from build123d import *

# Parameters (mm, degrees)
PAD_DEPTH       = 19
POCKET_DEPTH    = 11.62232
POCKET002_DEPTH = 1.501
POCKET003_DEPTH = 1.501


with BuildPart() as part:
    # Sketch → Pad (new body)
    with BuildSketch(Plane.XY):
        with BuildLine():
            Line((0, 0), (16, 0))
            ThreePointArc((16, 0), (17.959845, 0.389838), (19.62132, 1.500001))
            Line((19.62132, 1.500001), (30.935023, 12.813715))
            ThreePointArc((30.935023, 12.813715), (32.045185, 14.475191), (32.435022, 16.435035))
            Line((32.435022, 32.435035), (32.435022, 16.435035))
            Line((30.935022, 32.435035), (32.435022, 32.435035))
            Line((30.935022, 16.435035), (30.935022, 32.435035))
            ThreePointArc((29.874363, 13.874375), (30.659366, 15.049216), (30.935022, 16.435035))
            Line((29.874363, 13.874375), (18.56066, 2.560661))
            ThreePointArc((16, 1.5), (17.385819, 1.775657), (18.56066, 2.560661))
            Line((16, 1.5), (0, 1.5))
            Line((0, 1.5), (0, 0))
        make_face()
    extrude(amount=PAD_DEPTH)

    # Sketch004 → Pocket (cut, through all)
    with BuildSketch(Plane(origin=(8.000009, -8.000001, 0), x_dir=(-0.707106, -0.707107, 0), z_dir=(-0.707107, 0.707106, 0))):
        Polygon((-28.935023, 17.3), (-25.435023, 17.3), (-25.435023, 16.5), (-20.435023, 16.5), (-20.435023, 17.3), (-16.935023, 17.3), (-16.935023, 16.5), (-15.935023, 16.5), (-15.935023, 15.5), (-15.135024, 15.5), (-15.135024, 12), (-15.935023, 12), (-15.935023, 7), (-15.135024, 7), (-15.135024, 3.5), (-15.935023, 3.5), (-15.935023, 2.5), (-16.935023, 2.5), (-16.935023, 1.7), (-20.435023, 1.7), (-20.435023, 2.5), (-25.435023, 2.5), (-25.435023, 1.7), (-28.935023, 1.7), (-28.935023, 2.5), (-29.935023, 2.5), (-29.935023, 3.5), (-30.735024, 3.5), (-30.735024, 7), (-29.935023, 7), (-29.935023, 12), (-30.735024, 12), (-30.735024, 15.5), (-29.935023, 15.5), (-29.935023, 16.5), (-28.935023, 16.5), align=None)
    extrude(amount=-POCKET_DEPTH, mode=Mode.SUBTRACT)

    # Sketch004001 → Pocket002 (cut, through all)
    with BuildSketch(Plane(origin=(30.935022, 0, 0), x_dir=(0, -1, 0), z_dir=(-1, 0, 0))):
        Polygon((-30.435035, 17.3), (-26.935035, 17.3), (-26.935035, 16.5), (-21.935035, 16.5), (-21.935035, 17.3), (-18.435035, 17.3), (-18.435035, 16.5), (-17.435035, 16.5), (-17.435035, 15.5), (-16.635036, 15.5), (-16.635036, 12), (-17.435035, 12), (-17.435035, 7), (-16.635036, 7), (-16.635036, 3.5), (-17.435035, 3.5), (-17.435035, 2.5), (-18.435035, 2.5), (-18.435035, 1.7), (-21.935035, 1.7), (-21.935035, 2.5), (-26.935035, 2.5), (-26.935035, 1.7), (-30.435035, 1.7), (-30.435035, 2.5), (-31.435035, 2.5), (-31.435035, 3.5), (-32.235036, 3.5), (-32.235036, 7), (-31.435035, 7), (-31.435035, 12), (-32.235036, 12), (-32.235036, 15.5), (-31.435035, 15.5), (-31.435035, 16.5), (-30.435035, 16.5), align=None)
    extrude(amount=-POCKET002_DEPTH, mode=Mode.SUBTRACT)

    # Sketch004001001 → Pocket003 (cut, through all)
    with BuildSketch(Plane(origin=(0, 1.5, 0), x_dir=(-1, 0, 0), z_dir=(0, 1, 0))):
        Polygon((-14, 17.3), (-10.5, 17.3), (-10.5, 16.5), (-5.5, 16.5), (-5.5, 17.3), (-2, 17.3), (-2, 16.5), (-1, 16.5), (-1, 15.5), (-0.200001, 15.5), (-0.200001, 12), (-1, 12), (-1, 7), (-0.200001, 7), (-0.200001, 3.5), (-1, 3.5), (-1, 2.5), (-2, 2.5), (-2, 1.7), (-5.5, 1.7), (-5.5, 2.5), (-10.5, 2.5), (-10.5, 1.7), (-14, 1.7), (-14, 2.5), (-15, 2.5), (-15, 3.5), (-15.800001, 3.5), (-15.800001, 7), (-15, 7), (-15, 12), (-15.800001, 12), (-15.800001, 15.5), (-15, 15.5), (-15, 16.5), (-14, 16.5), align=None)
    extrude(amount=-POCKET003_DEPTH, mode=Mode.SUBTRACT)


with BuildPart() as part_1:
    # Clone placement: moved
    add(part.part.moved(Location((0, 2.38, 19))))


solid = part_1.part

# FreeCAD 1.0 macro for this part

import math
import FreeCAD as App
import Part
import Sketcher
from FreeCAD import Vector
Q = App.Units.Quantity

doc = App.newDocument("Part")
body = doc.addObject("PartDesign::Body", "Body")

sketch1 = doc.addObject("Sketcher::SketchObject", "Sketch")
body.addObject(sketch1)
sketch1.AttachmentSupport = (doc.XY_Plane, [""])
sketch1.MapMode = "FlatFace"
sketch1.addGeometry([
    Part.LineSegment(Vector(0, 0, 0), Vector(16, 0, 0)),
    Part.ArcOfCircle(Part.Circle(Vector(16, 5.1, 0), Vector(0, 0, 1), 5.1), math.radians(-90), math.radians(-45)),
    Part.LineSegment(Vector(19.6, 1.5, 0), Vector(30.9, 12.8, 0)),
    Part.ArcOfCircle(Part.Circle(Vector(27.3, 16.4, 0), Vector(0, 0, 1), 5.1), math.radians(-45), math.radians(0)),
    Part.LineSegment(Vector(32.4, 16.4, 0), Vector(32.4, 32.4, 0)),
    Part.LineSegment(Vector(32.4, 32.4, 0), Vector(30.9, 32.4, 0)),
    Part.LineSegment(Vector(30.9, 32.4, 0), Vector(30.9, 16.4, 0)),
    Part.ArcOfCircle(Part.Circle(Vector(27.3, 16.4, 0), Vector(0, 0, 1), 3.6), math.radians(-45), math.radians(0)),
    Part.LineSegment(Vector(29.9, 13.9, 0), Vector(18.6, 2.6, 0)),
    Part.ArcOfCircle(Part.Circle(Vector(16, 5.1, 0), Vector(0, 0, 1), 3.6), math.radians(-90), math.radians(-45)),
    Part.LineSegment(Vector(16, 1.5, 0), Vector(0, 1.5, 0)),
    Part.LineSegment(Vector(0, 1.5, 0), Vector(0, 0, 0)),
], False)
sketch1.addConstraint([
    Sketcher.Constraint("Tangent", 0, 2, 1, 1),
    Sketcher.Constraint("Tangent", 1, 2, 2, 1),
    Sketcher.Constraint("Tangent", 2, 2, 3, 1),
    Sketcher.Constraint("Tangent", 3, 2, 4, 1),
    Sketcher.Constraint("Coincident", 4, 2, 5, 1),
    Sketcher.Constraint("Coincident", 5, 2, 6, 1),
    Sketcher.Constraint("Tangent", 6, 2, 7, 2),
    Sketcher.Constraint("Tangent", 7, 1, 8, 1),
    Sketcher.Constraint("Tangent", 8, 2, 9, 2),
    Sketcher.Constraint("Tangent", 9, 1, 10, 1),
    Sketcher.Constraint("Coincident", 10, 2, 11, 1),
    Sketcher.Constraint("Coincident", 11, 2, 0, 1),
    Sketcher.Constraint("Horizontal", 0),
    Sketcher.Constraint("Vertical", 4),
    Sketcher.Constraint("Horizontal", 5),
    Sketcher.Constraint("Vertical", 6),
    Sketcher.Constraint("Horizontal", 10),
    Sketcher.Constraint("Vertical", 11),
    Sketcher.Constraint("Coincident", 11, 2, -1, 1),
    Sketcher.Constraint("Coincident", 7, 3, 3, 3),
    Sketcher.Constraint("Coincident", 9, 3, 1, 3),
    Sketcher.Constraint("Equal", 7, 9),
    Sketcher.Constraint("Parallel", 2, 8),
    Sketcher.Constraint("Horizontal", 1, 2, 9, 1),
    Sketcher.Constraint("Vertical", 2, 2, 5, 2),
    Sketcher.Constraint("Equal", 10, 4),
    Sketcher.Constraint("DistanceX", 0, 1, 0, 2, Q("16 mm")),
    Sketcher.Constraint("Distance", 2, Q("16 mm")),
    Sketcher.Constraint("DistanceX", 5, 2, 5, 1, Q("1.5 mm")),
])
pad1 = doc.addObject("PartDesign::Pad", "Pad")
body.addObject(pad1)
pad1.Profile = sketch1
pad1.Length = 19

sketch2 = doc.addObject("Sketcher::SketchObject", "Sketch001")
body.addObject(sketch2)
sketch2.Placement = App.Placement(Vector(8.000009, -8.000001, 0), App.Rotation(Vector(-0.707106281, -0.707107281, 0), Vector(0, 0, 0.999999999), Vector(-0.707107281, 0.707106281, 0), "ZXY"))
sketch2.addGeometry([
    Part.LineSegment(Vector(-25.4, 17.3, 0), Vector(-28.9, 17.3, 0)),
    Part.LineSegment(Vector(-28.9, 17.3, 0), Vector(-28.9, 16.5, 0)),
    Part.LineSegment(Vector(-28.9, 16.5, 0), Vector(-29.9, 16.5, 0)),
    Part.LineSegment(Vector(-29.9, 16.5, 0), Vector(-29.9, 15.5, 0)),
    Part.LineSegment(Vector(-29.9, 15.5, 0), Vector(-30.7, 15.5, 0)),
    Part.LineSegment(Vector(-30.7, 15.5, 0), Vector(-30.7, 12, 0)),
    Part.LineSegment(Vector(-30.7, 12, 0), Vector(-29.9, 12, 0)),
    Part.LineSegment(Vector(-29.9, 12, 0), Vector(-29.9, 7, 0)),
    Part.LineSegment(Vector(-29.9, 7, 0), Vector(-30.7, 7, 0)),
    Part.LineSegment(Vector(-30.7, 7, 0), Vector(-30.7, 3.5, 0)),
    Part.LineSegment(Vector(-30.7, 3.5, 0), Vector(-29.9, 3.5, 0)),
    Part.LineSegment(Vector(-29.9, 3.5, 0), Vector(-29.9, 2.5, 0)),
    Part.LineSegment(Vector(-29.9, 2.5, 0), Vector(-28.9, 2.5, 0)),
    Part.LineSegment(Vector(-28.9, 2.5, 0), Vector(-28.9, 1.7, 0)),
    Part.LineSegment(Vector(-28.9, 1.7, 0), Vector(-25.4, 1.7, 0)),
    Part.LineSegment(Vector(-25.4, 1.7, 0), Vector(-25.4, 2.5, 0)),
    Part.LineSegment(Vector(-25.4, 2.5, 0), Vector(-20.4, 2.5, 0)),
    Part.LineSegment(Vector(-20.4, 2.5, 0), Vector(-20.4, 1.7, 0)),
    Part.LineSegment(Vector(-20.4, 1.7, 0), Vector(-16.9, 1.7, 0)),
    Part.LineSegment(Vector(-16.9, 1.7, 0), Vector(-16.9, 2.5, 0)),
    Part.LineSegment(Vector(-16.9, 2.5, 0), Vector(-15.9, 2.5, 0)),
    Part.LineSegment(Vector(-15.9, 2.5, 0), Vector(-15.9, 3.5, 0)),
    Part.LineSegment(Vector(-15.9, 3.5, 0), Vector(-15.1, 3.5, 0)),
    Part.LineSegment(Vector(-15.1, 3.5, 0), Vector(-15.1, 7, 0)),
    Part.LineSegment(Vector(-15.1, 7, 0), Vector(-15.9, 7, 0)),
    Part.LineSegment(Vector(-15.9, 7, 0), Vector(-15.9, 12, 0)),
    Part.LineSegment(Vector(-15.9, 12, 0), Vector(-15.1, 12, 0)),
    Part.LineSegment(Vector(-15.1, 12, 0), Vector(-15.1, 15.5, 0)),
    Part.LineSegment(Vector(-15.1, 15.5, 0), Vector(-15.9, 15.5, 0)),
    Part.LineSegment(Vector(-15.9, 15.5, 0), Vector(-15.9, 16.5, 0)),
    Part.LineSegment(Vector(-15.9, 16.5, 0), Vector(-16.9, 16.5, 0)),
    Part.LineSegment(Vector(-16.9, 16.5, 0), Vector(-16.9, 17.3, 0)),
    Part.LineSegment(Vector(-16.9, 17.3, 0), Vector(-20.4, 17.3, 0)),
    Part.LineSegment(Vector(-20.4, 17.3, 0), Vector(-20.4, 16.5, 0)),
    Part.LineSegment(Vector(-20.4, 16.5, 0), Vector(-25.4, 16.5, 0)),
    Part.LineSegment(Vector(-25.4, 16.5, 0), Vector(-25.4, 17.3, 0)),
], False)
sketch2.addConstraint([
    Sketcher.Constraint("Coincident", 0, 2, 1, 1),
    Sketcher.Constraint("Coincident", 1, 2, 2, 1),
    Sketcher.Constraint("Coincident", 2, 2, 3, 1),
    Sketcher.Constraint("Coincident", 3, 2, 4, 1),
    Sketcher.Constraint("Coincident", 4, 2, 5, 1),
    Sketcher.Constraint("Coincident", 5, 2, 6, 1),
    Sketcher.Constraint("Coincident", 6, 2, 7, 1),
    Sketcher.Constraint("Coincident", 7, 2, 8, 1),
    Sketcher.Constraint("Coincident", 8, 2, 9, 1),
    Sketcher.Constraint("Coincident", 9, 2, 10, 1),
    Sketcher.Constraint("Coincident", 10, 2, 11, 1),
    Sketcher.Constraint("Coincident", 11, 2, 12, 1),
    Sketcher.Constraint("Coincident", 12, 2, 13, 1),
    Sketcher.Constraint("Coincident", 13, 2, 14, 1),
    Sketcher.Constraint("Coincident", 14, 2, 15, 1),
    Sketcher.Constraint("Coincident", 15, 2, 16, 1),
    Sketcher.Constraint("Coincident", 16, 2, 17, 1),
    Sketcher.Constraint("Coincident", 17, 2, 18, 1),
    Sketcher.Constraint("Coincident", 18, 2, 19, 1),
    Sketcher.Constraint("Coincident", 19, 2, 20, 1),
    Sketcher.Constraint("Coincident", 20, 2, 21, 1),
    Sketcher.Constraint("Coincident", 21, 2, 22, 1),
    Sketcher.Constraint("Coincident", 22, 2, 23, 1),
    Sketcher.Constraint("Coincident", 23, 2, 24, 1),
    Sketcher.Constraint("Coincident", 24, 2, 25, 1),
    Sketcher.Constraint("Coincident", 25, 2, 26, 1),
    Sketcher.Constraint("Coincident", 26, 2, 27, 1),
    Sketcher.Constraint("Coincident", 27, 2, 28, 1),
    Sketcher.Constraint("Coincident", 28, 2, 29, 1),
    Sketcher.Constraint("Coincident", 29, 2, 30, 1),
    Sketcher.Constraint("Coincident", 30, 2, 31, 1),
    Sketcher.Constraint("Coincident", 31, 2, 32, 1),
    Sketcher.Constraint("Coincident", 32, 2, 33, 1),
    Sketcher.Constraint("Coincident", 33, 2, 34, 1),
    Sketcher.Constraint("Coincident", 34, 2, 35, 1),
    Sketcher.Constraint("Coincident", 35, 2, 0, 1),
    Sketcher.Constraint("Horizontal", 0),
    Sketcher.Constraint("Vertical", 1),
    Sketcher.Constraint("Horizontal", 2),
    Sketcher.Constraint("Vertical", 3),
    Sketcher.Constraint("Horizontal", 4),
    Sketcher.Constraint("Vertical", 5),
    Sketcher.Constraint("Horizontal", 6),
    Sketcher.Constraint("Vertical", 7),
    Sketcher.Constraint("Horizontal", 8),
    Sketcher.Constraint("Vertical", 9),
    Sketcher.Constraint("Horizontal", 10),
    Sketcher.Constraint("Vertical", 11),
    Sketcher.Constraint("Horizontal", 12),
    Sketcher.Constraint("Vertical", 13),
    Sketcher.Constraint("Horizontal", 14),
    Sketcher.Constraint("Vertical", 15),
    Sketcher.Constraint("Horizontal", 16),
    Sketcher.Constraint("Vertical", 17),
    Sketcher.Constraint("Horizontal", 18),
    Sketcher.Constraint("Vertical", 19),
    Sketcher.Constraint("Horizontal", 20),
    Sketcher.Constraint("Vertical", 21),
    Sketcher.Constraint("Horizontal", 22),
    Sketcher.Constraint("Vertical", 23),
    Sketcher.Constraint("Horizontal", 24),
    Sketcher.Constraint("Vertical", 25),
    Sketcher.Constraint("Horizontal", 26),
    Sketcher.Constraint("Vertical", 27),
    Sketcher.Constraint("Horizontal", 28),
    Sketcher.Constraint("Vertical", 29),
    Sketcher.Constraint("Horizontal", 30),
    Sketcher.Constraint("Vertical", 31),
    Sketcher.Constraint("Horizontal", 32),
    Sketcher.Constraint("Vertical", 33),
    Sketcher.Constraint("Horizontal", 34),
    Sketcher.Constraint("Vertical", 35),
    Sketcher.Constraint("Horizontal", 12, 2, 15, 2),
    Sketcher.Constraint("Horizontal", 14, 2, 17, 2),
    Sketcher.Constraint("Horizontal", 16, 2, 19, 2),
    Sketcher.Constraint("Horizontal", 10, 2, 21, 2),
    Sketcher.Constraint("Horizontal", 8, 2, 23, 2),
    Sketcher.Constraint("Horizontal", 6, 2, 25, 2),
    Sketcher.Constraint("Horizontal", 4, 2, 27, 2),
    Sketcher.Constraint("Horizontal", 2, 2, 29, 2),
    Sketcher.Constraint("Horizontal", 0, 2, 31, 2),
    Sketcher.Constraint("Horizontal", 30, 2, 33, 2),
    Sketcher.Constraint("Vertical", 3, 2, 6, 2),
    Sketcher.Constraint("Vertical", 5, 2, 8, 2),
    Sketcher.Constraint("Vertical", 7, 2, 10, 2),
    Sketcher.Constraint("Vertical", 1, 2, 12, 2),
    Sketcher.Constraint("Vertical", 21, 2, 24, 2),
    Sketcher.Constraint("Vertical", 23, 2, 26, 2),
    Sketcher.Constraint("Vertical", 25, 2, 28, 2),
    Sketcher.Constraint("Vertical", 19, 2, 30, 2),
    Sketcher.Constraint("Vertical", 17, 2, 32, 2),
    Sketcher.Constraint("Vertical", 15, 2, 34, 2),
    Sketcher.Constraint("Equal", 14, 18),
    Sketcher.Constraint("Equal", 12, 20),
    Sketcher.Constraint("Equal", 28, 1),
    Sketcher.Constraint("Equal", 30, 3),
    Sketcher.Constraint("Equal", 32, 5),
    Sketcher.Constraint("Equal", 34, 7),
    Sketcher.Constraint("Equal", 5, 9),
    Sketcher.Constraint("Equal", 3, 11),
    Sketcher.Constraint("Equal", 1, 13),
    Sketcher.Constraint("Equal", 10, 15),
    Sketcher.Constraint("DistanceX", 2, 2, 2, 1, Q("1 mm")),
    Sketcher.Constraint("DistanceX", 16, 1, 16, 2, Q("5 mm")),
    Sketcher.Constraint("DistanceX", 0, 2, 0, 1, Q("3.5 mm")),
    Sketcher.Constraint("DistanceX", 4, 2, 4, 1, Q("0.800001 mm")),
    Sketcher.Constraint("DistanceY", -1, 1, 5, 2, Q("12 mm")),
    Sketcher.Constraint("DistanceX", 0, 2, -1, 1, Q("28.935023 mm")),
])
pocket1 = doc.addObject("PartDesign::Pocket", "Pocket")
body.addObject(pocket1)
pocket1.Profile = sketch2
pocket1.Type = "ThroughAll"

sketch3 = doc.addObject("Sketcher::SketchObject", "Sketch002")
body.addObject(sketch3)
sketch3.AttachmentSupport = (doc.YZ_Plane, [""])
sketch3.MapMode = "FlatFace"
sketch3.AttachmentOffset = App.Placement(Vector(0, 0, 30.935022), App.Rotation())
sketch3.addGeometry([
    Part.LineSegment(Vector(26.9, 17.3, 0), Vector(30.4, 17.3, 0)),
    Part.LineSegment(Vector(30.4, 17.3, 0), Vector(30.4, 16.5, 0)),
    Part.LineSegment(Vector(30.4, 16.5, 0), Vector(31.4, 16.5, 0)),
    Part.LineSegment(Vector(31.4, 16.5, 0), Vector(31.4, 15.5, 0)),
    Part.LineSegment(Vector(31.4, 15.5, 0), Vector(32.2, 15.5, 0)),
    Part.LineSegment(Vector(32.2, 15.5, 0), Vector(32.2, 12, 0)),
    Part.LineSegment(Vector(32.2, 12, 0), Vector(31.4, 12, 0)),
    Part.LineSegment(Vector(31.4, 12, 0), Vector(31.4, 7, 0)),
    Part.LineSegment(Vector(31.4, 7, 0), Vector(32.2, 7, 0)),
    Part.LineSegment(Vector(32.2, 7, 0), Vector(32.2, 3.5, 0)),
    Part.LineSegment(Vector(32.2, 3.5, 0), Vector(31.4, 3.5, 0)),
    Part.LineSegment(Vector(31.4, 3.5, 0), Vector(31.4, 2.5, 0)),
    Part.LineSegment(Vector(31.4, 2.5, 0), Vector(30.4, 2.5, 0)),
    Part.LineSegment(Vector(30.4, 2.5, 0), Vector(30.4, 1.7, 0)),
    Part.LineSegment(Vector(30.4, 1.7, 0), Vector(26.9, 1.7, 0)),
    Part.LineSegment(Vector(26.9, 1.7, 0), Vector(26.9, 2.5, 0)),
    Part.LineSegment(Vector(26.9, 2.5, 0), Vector(21.9, 2.5, 0)),
    Part.LineSegment(Vector(21.9, 2.5, 0), Vector(21.9, 1.7, 0)),
    Part.LineSegment(Vector(21.9, 1.7, 0), Vector(18.4, 1.7, 0)),
    Part.LineSegment(Vector(18.4, 1.7, 0), Vector(18.4, 2.5, 0)),
    Part.LineSegment(Vector(18.4, 2.5, 0), Vector(17.4, 2.5, 0)),
    Part.LineSegment(Vector(17.4, 2.5, 0), Vector(17.4, 3.5, 0)),
    Part.LineSegment(Vector(17.4, 3.5, 0), Vector(16.6, 3.5, 0)),
    Part.LineSegment(Vector(16.6, 3.5, 0), Vector(16.6, 7, 0)),
    Part.LineSegment(Vector(16.6, 7, 0), Vector(17.4, 7, 0)),
    Part.LineSegment(Vector(17.4, 7, 0), Vector(17.4, 12, 0)),
    Part.LineSegment(Vector(17.4, 12, 0), Vector(16.6, 12, 0)),
    Part.LineSegment(Vector(16.6, 12, 0), Vector(16.6, 15.5, 0)),
    Part.LineSegment(Vector(16.6, 15.5, 0), Vector(17.4, 15.5, 0)),
    Part.LineSegment(Vector(17.4, 15.5, 0), Vector(17.4, 16.5, 0)),
    Part.LineSegment(Vector(17.4, 16.5, 0), Vector(18.4, 16.5, 0)),
    Part.LineSegment(Vector(18.4, 16.5, 0), Vector(18.4, 17.3, 0)),
    Part.LineSegment(Vector(18.4, 17.3, 0), Vector(21.9, 17.3, 0)),
    Part.LineSegment(Vector(21.9, 17.3, 0), Vector(21.9, 16.5, 0)),
    Part.LineSegment(Vector(21.9, 16.5, 0), Vector(26.9, 16.5, 0)),
    Part.LineSegment(Vector(26.9, 16.5, 0), Vector(26.9, 17.3, 0)),
], False)
sketch3.addConstraint([
    Sketcher.Constraint("Coincident", 0, 2, 1, 1),
    Sketcher.Constraint("Coincident", 1, 2, 2, 1),
    Sketcher.Constraint("Coincident", 2, 2, 3, 1),
    Sketcher.Constraint("Coincident", 3, 2, 4, 1),
    Sketcher.Constraint("Coincident", 4, 2, 5, 1),
    Sketcher.Constraint("Coincident", 5, 2, 6, 1),
    Sketcher.Constraint("Coincident", 6, 2, 7, 1),
    Sketcher.Constraint("Coincident", 7, 2, 8, 1),
    Sketcher.Constraint("Coincident", 8, 2, 9, 1),
    Sketcher.Constraint("Coincident", 9, 2, 10, 1),
    Sketcher.Constraint("Coincident", 10, 2, 11, 1),
    Sketcher.Constraint("Coincident", 11, 2, 12, 1),
    Sketcher.Constraint("Coincident", 12, 2, 13, 1),
    Sketcher.Constraint("Coincident", 13, 2, 14, 1),
    Sketcher.Constraint("Coincident", 14, 2, 15, 1),
    Sketcher.Constraint("Coincident", 15, 2, 16, 1),
    Sketcher.Constraint("Coincident", 16, 2, 17, 1),
    Sketcher.Constraint("Coincident", 17, 2, 18, 1),
    Sketcher.Constraint("Coincident", 18, 2, 19, 1),
    Sketcher.Constraint("Coincident", 19, 2, 20, 1),
    Sketcher.Constraint("Coincident", 20, 2, 21, 1),
    Sketcher.Constraint("Coincident", 21, 2, 22, 1),
    Sketcher.Constraint("Coincident", 22, 2, 23, 1),
    Sketcher.Constraint("Coincident", 23, 2, 24, 1),
    Sketcher.Constraint("Coincident", 24, 2, 25, 1),
    Sketcher.Constraint("Coincident", 25, 2, 26, 1),
    Sketcher.Constraint("Coincident", 26, 2, 27, 1),
    Sketcher.Constraint("Coincident", 27, 2, 28, 1),
    Sketcher.Constraint("Coincident", 28, 2, 29, 1),
    Sketcher.Constraint("Coincident", 29, 2, 30, 1),
    Sketcher.Constraint("Coincident", 30, 2, 31, 1),
    Sketcher.Constraint("Coincident", 31, 2, 32, 1),
    Sketcher.Constraint("Coincident", 32, 2, 33, 1),
    Sketcher.Constraint("Coincident", 33, 2, 34, 1),
    Sketcher.Constraint("Coincident", 34, 2, 35, 1),
    Sketcher.Constraint("Coincident", 35, 2, 0, 1),
    Sketcher.Constraint("Horizontal", 0),
    Sketcher.Constraint("Vertical", 1),
    Sketcher.Constraint("Horizontal", 2),
    Sketcher.Constraint("Vertical", 3),
    Sketcher.Constraint("Horizontal", 4),
    Sketcher.Constraint("Vertical", 5),
    Sketcher.Constraint("Horizontal", 6),
    Sketcher.Constraint("Vertical", 7),
    Sketcher.Constraint("Horizontal", 8),
    Sketcher.Constraint("Vertical", 9),
    Sketcher.Constraint("Horizontal", 10),
    Sketcher.Constraint("Vertical", 11),
    Sketcher.Constraint("Horizontal", 12),
    Sketcher.Constraint("Vertical", 13),
    Sketcher.Constraint("Horizontal", 14),
    Sketcher.Constraint("Vertical", 15),
    Sketcher.Constraint("Horizontal", 16),
    Sketcher.Constraint("Vertical", 17),
    Sketcher.Constraint("Horizontal", 18),
    Sketcher.Constraint("Vertical", 19),
    Sketcher.Constraint("Horizontal", 20),
    Sketcher.Constraint("Vertical", 21),
    Sketcher.Constraint("Horizontal", 22),
    Sketcher.Constraint("Vertical", 23),
    Sketcher.Constraint("Horizontal", 24),
    Sketcher.Constraint("Vertical", 25),
    Sketcher.Constraint("Horizontal", 26),
    Sketcher.Constraint("Vertical", 27),
    Sketcher.Constraint("Horizontal", 28),
    Sketcher.Constraint("Vertical", 29),
    Sketcher.Constraint("Horizontal", 30),
    Sketcher.Constraint("Vertical", 31),
    Sketcher.Constraint("Horizontal", 32),
    Sketcher.Constraint("Vertical", 33),
    Sketcher.Constraint("Horizontal", 34),
    Sketcher.Constraint("Vertical", 35),
    Sketcher.Constraint("Horizontal", 12, 2, 15, 2),
    Sketcher.Constraint("Horizontal", 14, 2, 17, 2),
    Sketcher.Constraint("Horizontal", 16, 2, 19, 2),
    Sketcher.Constraint("Horizontal", 10, 2, 21, 2),
    Sketcher.Constraint("Horizontal", 8, 2, 23, 2),
    Sketcher.Constraint("Horizontal", 6, 2, 25, 2),
    Sketcher.Constraint("Horizontal", 4, 2, 27, 2),
    Sketcher.Constraint("Horizontal", 2, 2, 29, 2),
    Sketcher.Constraint("Horizontal", 0, 2, 31, 2),
    Sketcher.Constraint("Horizontal", 30, 2, 33, 2),
    Sketcher.Constraint("Vertical", 3, 2, 6, 2),
    Sketcher.Constraint("Vertical", 5, 2, 8, 2),
    Sketcher.Constraint("Vertical", 7, 2, 10, 2),
    Sketcher.Constraint("Vertical", 1, 2, 12, 2),
    Sketcher.Constraint("Vertical", 21, 2, 24, 2),
    Sketcher.Constraint("Vertical", 23, 2, 26, 2),
    Sketcher.Constraint("Vertical", 25, 2, 28, 2),
    Sketcher.Constraint("Vertical", 19, 2, 30, 2),
    Sketcher.Constraint("Vertical", 17, 2, 32, 2),
    Sketcher.Constraint("Vertical", 15, 2, 34, 2),
    Sketcher.Constraint("Equal", 14, 18),
    Sketcher.Constraint("Equal", 12, 20),
    Sketcher.Constraint("Equal", 28, 1),
    Sketcher.Constraint("Equal", 30, 3),
    Sketcher.Constraint("Equal", 32, 5),
    Sketcher.Constraint("Equal", 34, 7),
    Sketcher.Constraint("Equal", 5, 9),
    Sketcher.Constraint("Equal", 3, 11),
    Sketcher.Constraint("Equal", 1, 13),
    Sketcher.Constraint("Equal", 10, 15),
    Sketcher.Constraint("DistanceX", 2, 1, 2, 2, Q("1 mm")),
    Sketcher.Constraint("DistanceX", 16, 2, 16, 1, Q("5 mm")),
    Sketcher.Constraint("DistanceX", 0, 1, 0, 2, Q("3.5 mm")),
    Sketcher.Constraint("DistanceX", 4, 1, 4, 2, Q("0.800001 mm")),
    Sketcher.Constraint("DistanceY", -1, 1, 5, 2, Q("12 mm")),
    Sketcher.Constraint("DistanceX", -1, 1, 0, 2, Q("30.435035 mm")),
])
pocket2 = doc.addObject("PartDesign::Pocket", "Pocket001")
body.addObject(pocket2)
pocket2.Profile = sketch3
pocket2.Type = "ThroughAll"
pocket2.Reversed = True

sketch4 = doc.addObject("Sketcher::SketchObject", "Sketch003")
body.addObject(sketch4)
sketch4.AttachmentSupport = (doc.XZ_Plane, [""])
sketch4.MapMode = "FlatFace"
sketch4.AttachmentOffset = App.Placement(Vector(0, 0, -1.5), App.Rotation())
sketch4.addGeometry([
    Part.LineSegment(Vector(10.5, 17.3, 0), Vector(14, 17.3, 0)),
    Part.LineSegment(Vector(14, 17.3, 0), Vector(14, 16.5, 0)),
    Part.LineSegment(Vector(14, 16.5, 0), Vector(15, 16.5, 0)),
    Part.LineSegment(Vector(15, 16.5, 0), Vector(15, 15.5, 0)),
    Part.LineSegment(Vector(15, 15.5, 0), Vector(15.8, 15.5, 0)),
    Part.LineSegment(Vector(15.8, 15.5, 0), Vector(15.8, 12, 0)),
    Part.LineSegment(Vector(15.8, 12, 0), Vector(15, 12, 0)),
    Part.LineSegment(Vector(15, 12, 0), Vector(15, 7, 0)),
    Part.LineSegment(Vector(15, 7, 0), Vector(15.8, 7, 0)),
    Part.LineSegment(Vector(15.8, 7, 0), Vector(15.8, 3.5, 0)),
    Part.LineSegment(Vector(15.8, 3.5, 0), Vector(15, 3.5, 0)),
    Part.LineSegment(Vector(15, 3.5, 0), Vector(15, 2.5, 0)),
    Part.LineSegment(Vector(15, 2.5, 0), Vector(14, 2.5, 0)),
    Part.LineSegment(Vector(14, 2.5, 0), Vector(14, 1.7, 0)),
    Part.LineSegment(Vector(14, 1.7, 0), Vector(10.5, 1.7, 0)),
    Part.LineSegment(Vector(10.5, 1.7, 0), Vector(10.5, 2.5, 0)),
    Part.LineSegment(Vector(10.5, 2.5, 0), Vector(5.5, 2.5, 0)),
    Part.LineSegment(Vector(5.5, 2.5, 0), Vector(5.5, 1.7, 0)),
    Part.LineSegment(Vector(5.5, 1.7, 0), Vector(2, 1.7, 0)),
    Part.LineSegment(Vector(2, 1.7, 0), Vector(2, 2.5, 0)),
    Part.LineSegment(Vector(2, 2.5, 0), Vector(1, 2.5, 0)),
    Part.LineSegment(Vector(1, 2.5, 0), Vector(1, 3.5, 0)),
    Part.LineSegment(Vector(1, 3.5, 0), Vector(0.2, 3.5, 0)),
    Part.LineSegment(Vector(0.2, 3.5, 0), Vector(0.2, 7, 0)),
    Part.LineSegment(Vector(0.2, 7, 0), Vector(1, 7, 0)),
    Part.LineSegment(Vector(1, 7, 0), Vector(1, 12, 0)),
    Part.LineSegment(Vector(1, 12, 0), Vector(0.2, 12, 0)),
    Part.LineSegment(Vector(0.2, 12, 0), Vector(0.2, 15.5, 0)),
    Part.LineSegment(Vector(0.2, 15.5, 0), Vector(1, 15.5, 0)),
    Part.LineSegment(Vector(1, 15.5, 0), Vector(1, 16.5, 0)),
    Part.LineSegment(Vector(1, 16.5, 0), Vector(2, 16.5, 0)),
    Part.LineSegment(Vector(2, 16.5, 0), Vector(2, 17.3, 0)),
    Part.LineSegment(Vector(2, 17.3, 0), Vector(5.5, 17.3, 0)),
    Part.LineSegment(Vector(5.5, 17.3, 0), Vector(5.5, 16.5, 0)),
    Part.LineSegment(Vector(5.5, 16.5, 0), Vector(10.5, 16.5, 0)),
    Part.LineSegment(Vector(10.5, 16.5, 0), Vector(10.5, 17.3, 0)),
], False)
sketch4.addConstraint([
    Sketcher.Constraint("Coincident", 0, 2, 1, 1),
    Sketcher.Constraint("Coincident", 1, 2, 2, 1),
    Sketcher.Constraint("Coincident", 2, 2, 3, 1),
    Sketcher.Constraint("Coincident", 3, 2, 4, 1),
    Sketcher.Constraint("Coincident", 4, 2, 5, 1),
    Sketcher.Constraint("Coincident", 5, 2, 6, 1),
    Sketcher.Constraint("Coincident", 6, 2, 7, 1),
    Sketcher.Constraint("Coincident", 7, 2, 8, 1),
    Sketcher.Constraint("Coincident", 8, 2, 9, 1),
    Sketcher.Constraint("Coincident", 9, 2, 10, 1),
    Sketcher.Constraint("Coincident", 10, 2, 11, 1),
    Sketcher.Constraint("Coincident", 11, 2, 12, 1),
    Sketcher.Constraint("Coincident", 12, 2, 13, 1),
    Sketcher.Constraint("Coincident", 13, 2, 14, 1),
    Sketcher.Constraint("Coincident", 14, 2, 15, 1),
    Sketcher.Constraint("Coincident", 15, 2, 16, 1),
    Sketcher.Constraint("Coincident", 16, 2, 17, 1),
    Sketcher.Constraint("Coincident", 17, 2, 18, 1),
    Sketcher.Constraint("Coincident", 18, 2, 19, 1),
    Sketcher.Constraint("Coincident", 19, 2, 20, 1),
    Sketcher.Constraint("Coincident", 20, 2, 21, 1),
    Sketcher.Constraint("Coincident", 21, 2, 22, 1),
    Sketcher.Constraint("Coincident", 22, 2, 23, 1),
    Sketcher.Constraint("Coincident", 23, 2, 24, 1),
    Sketcher.Constraint("Coincident", 24, 2, 25, 1),
    Sketcher.Constraint("Coincident", 25, 2, 26, 1),
    Sketcher.Constraint("Coincident", 26, 2, 27, 1),
    Sketcher.Constraint("Coincident", 27, 2, 28, 1),
    Sketcher.Constraint("Coincident", 28, 2, 29, 1),
    Sketcher.Constraint("Coincident", 29, 2, 30, 1),
    Sketcher.Constraint("Coincident", 30, 2, 31, 1),
    Sketcher.Constraint("Coincident", 31, 2, 32, 1),
    Sketcher.Constraint("Coincident", 32, 2, 33, 1),
    Sketcher.Constraint("Coincident", 33, 2, 34, 1),
    Sketcher.Constraint("Coincident", 34, 2, 35, 1),
    Sketcher.Constraint("Coincident", 35, 2, 0, 1),
    Sketcher.Constraint("Horizontal", 0),
    Sketcher.Constraint("Vertical", 1),
    Sketcher.Constraint("Horizontal", 2),
    Sketcher.Constraint("Vertical", 3),
    Sketcher.Constraint("Horizontal", 4),
    Sketcher.Constraint("Vertical", 5),
    Sketcher.Constraint("Horizontal", 6),
    Sketcher.Constraint("Vertical", 7),
    Sketcher.Constraint("Horizontal", 8),
    Sketcher.Constraint("Vertical", 9),
    Sketcher.Constraint("Horizontal", 10),
    Sketcher.Constraint("Vertical", 11),
    Sketcher.Constraint("Horizontal", 12),
    Sketcher.Constraint("Vertical", 13),
    Sketcher.Constraint("Horizontal", 14),
    Sketcher.Constraint("Vertical", 15),
    Sketcher.Constraint("Horizontal", 16),
    Sketcher.Constraint("Vertical", 17),
    Sketcher.Constraint("Horizontal", 18),
    Sketcher.Constraint("Vertical", 19),
    Sketcher.Constraint("Horizontal", 20),
    Sketcher.Constraint("Vertical", 21),
    Sketcher.Constraint("Horizontal", 22),
    Sketcher.Constraint("Vertical", 23),
    Sketcher.Constraint("Horizontal", 24),
    Sketcher.Constraint("Vertical", 25),
    Sketcher.Constraint("Horizontal", 26),
    Sketcher.Constraint("Vertical", 27),
    Sketcher.Constraint("Horizontal", 28),
    Sketcher.Constraint("Vertical", 29),
    Sketcher.Constraint("Horizontal", 30),
    Sketcher.Constraint("Vertical", 31),
    Sketcher.Constraint("Horizontal", 32),
    Sketcher.Constraint("Vertical", 33),
    Sketcher.Constraint("Horizontal", 34),
    Sketcher.Constraint("Vertical", 35),
    Sketcher.Constraint("Horizontal", 12, 2, 15, 2),
    Sketcher.Constraint("Horizontal", 14, 2, 17, 2),
    Sketcher.Constraint("Horizontal", 16, 2, 19, 2),
    Sketcher.Constraint("Horizontal", 10, 2, 21, 2),
    Sketcher.Constraint("Horizontal", 8, 2, 23, 2),
    Sketcher.Constraint("Horizontal", 6, 2, 25, 2),
    Sketcher.Constraint("Horizontal", 4, 2, 27, 2),
    Sketcher.Constraint("Horizontal", 2, 2, 29, 2),
    Sketcher.Constraint("Horizontal", 0, 2, 31, 2),
    Sketcher.Constraint("Horizontal", 30, 2, 33, 2),
    Sketcher.Constraint("Vertical", 3, 2, 6, 2),
    Sketcher.Constraint("Vertical", 5, 2, 8, 2),
    Sketcher.Constraint("Vertical", 7, 2, 10, 2),
    Sketcher.Constraint("Vertical", 1, 2, 12, 2),
    Sketcher.Constraint("Vertical", 21, 2, 24, 2),
    Sketcher.Constraint("Vertical", 23, 2, 26, 2),
    Sketcher.Constraint("Vertical", 25, 2, 28, 2),
    Sketcher.Constraint("Vertical", 19, 2, 30, 2),
    Sketcher.Constraint("Vertical", 17, 2, 32, 2),
    Sketcher.Constraint("Vertical", 15, 2, 34, 2),
    Sketcher.Constraint("Equal", 14, 18),
    Sketcher.Constraint("Equal", 12, 20),
    Sketcher.Constraint("Equal", 10, 22),
    Sketcher.Constraint("Equal", 28, 1),
    Sketcher.Constraint("Equal", 30, 3),
    Sketcher.Constraint("Equal", 32, 5),
    Sketcher.Constraint("Equal", 34, 7),
    Sketcher.Constraint("Equal", 5, 9),
    Sketcher.Constraint("Equal", 3, 11),
    Sketcher.Constraint("Equal", 1, 13),
    Sketcher.Constraint("DistanceX", 2, 1, 2, 2, Q("1 mm")),
    Sketcher.Constraint("DistanceX", 16, 2, 16, 1, Q("5 mm")),
    Sketcher.Constraint("DistanceX", 0, 1, 0, 2, Q("3.5 mm")),
    Sketcher.Constraint("DistanceX", 4, 1, 4, 2, Q("0.800001 mm")),
    Sketcher.Constraint("DistanceX", -1, 1, 0, 2, Q("14 mm")),
    Sketcher.Constraint("DistanceY", -1, 1, 5, 2, Q("12 mm")),
])
pocket3 = doc.addObject("PartDesign::Pocket", "Pocket002")
body.addObject(pocket3)
pocket3.Profile = sketch4
pocket3.Type = "ThroughAll"
pocket3.Reversed = True
body2 = doc.addObject("PartDesign::Body", "Body001")
doc.recompute()

body.Placement = App.Placement(Vector(0, 2.38, 19), App.Rotation(Vector(0, 0, 1), 0))
boolean = doc.addObject("PartDesign::Boolean", "Boolean")
body2.addObject(boolean)
boolean.Type = "Fuse"
boolean.addObjects([body])

doc.recompute()
